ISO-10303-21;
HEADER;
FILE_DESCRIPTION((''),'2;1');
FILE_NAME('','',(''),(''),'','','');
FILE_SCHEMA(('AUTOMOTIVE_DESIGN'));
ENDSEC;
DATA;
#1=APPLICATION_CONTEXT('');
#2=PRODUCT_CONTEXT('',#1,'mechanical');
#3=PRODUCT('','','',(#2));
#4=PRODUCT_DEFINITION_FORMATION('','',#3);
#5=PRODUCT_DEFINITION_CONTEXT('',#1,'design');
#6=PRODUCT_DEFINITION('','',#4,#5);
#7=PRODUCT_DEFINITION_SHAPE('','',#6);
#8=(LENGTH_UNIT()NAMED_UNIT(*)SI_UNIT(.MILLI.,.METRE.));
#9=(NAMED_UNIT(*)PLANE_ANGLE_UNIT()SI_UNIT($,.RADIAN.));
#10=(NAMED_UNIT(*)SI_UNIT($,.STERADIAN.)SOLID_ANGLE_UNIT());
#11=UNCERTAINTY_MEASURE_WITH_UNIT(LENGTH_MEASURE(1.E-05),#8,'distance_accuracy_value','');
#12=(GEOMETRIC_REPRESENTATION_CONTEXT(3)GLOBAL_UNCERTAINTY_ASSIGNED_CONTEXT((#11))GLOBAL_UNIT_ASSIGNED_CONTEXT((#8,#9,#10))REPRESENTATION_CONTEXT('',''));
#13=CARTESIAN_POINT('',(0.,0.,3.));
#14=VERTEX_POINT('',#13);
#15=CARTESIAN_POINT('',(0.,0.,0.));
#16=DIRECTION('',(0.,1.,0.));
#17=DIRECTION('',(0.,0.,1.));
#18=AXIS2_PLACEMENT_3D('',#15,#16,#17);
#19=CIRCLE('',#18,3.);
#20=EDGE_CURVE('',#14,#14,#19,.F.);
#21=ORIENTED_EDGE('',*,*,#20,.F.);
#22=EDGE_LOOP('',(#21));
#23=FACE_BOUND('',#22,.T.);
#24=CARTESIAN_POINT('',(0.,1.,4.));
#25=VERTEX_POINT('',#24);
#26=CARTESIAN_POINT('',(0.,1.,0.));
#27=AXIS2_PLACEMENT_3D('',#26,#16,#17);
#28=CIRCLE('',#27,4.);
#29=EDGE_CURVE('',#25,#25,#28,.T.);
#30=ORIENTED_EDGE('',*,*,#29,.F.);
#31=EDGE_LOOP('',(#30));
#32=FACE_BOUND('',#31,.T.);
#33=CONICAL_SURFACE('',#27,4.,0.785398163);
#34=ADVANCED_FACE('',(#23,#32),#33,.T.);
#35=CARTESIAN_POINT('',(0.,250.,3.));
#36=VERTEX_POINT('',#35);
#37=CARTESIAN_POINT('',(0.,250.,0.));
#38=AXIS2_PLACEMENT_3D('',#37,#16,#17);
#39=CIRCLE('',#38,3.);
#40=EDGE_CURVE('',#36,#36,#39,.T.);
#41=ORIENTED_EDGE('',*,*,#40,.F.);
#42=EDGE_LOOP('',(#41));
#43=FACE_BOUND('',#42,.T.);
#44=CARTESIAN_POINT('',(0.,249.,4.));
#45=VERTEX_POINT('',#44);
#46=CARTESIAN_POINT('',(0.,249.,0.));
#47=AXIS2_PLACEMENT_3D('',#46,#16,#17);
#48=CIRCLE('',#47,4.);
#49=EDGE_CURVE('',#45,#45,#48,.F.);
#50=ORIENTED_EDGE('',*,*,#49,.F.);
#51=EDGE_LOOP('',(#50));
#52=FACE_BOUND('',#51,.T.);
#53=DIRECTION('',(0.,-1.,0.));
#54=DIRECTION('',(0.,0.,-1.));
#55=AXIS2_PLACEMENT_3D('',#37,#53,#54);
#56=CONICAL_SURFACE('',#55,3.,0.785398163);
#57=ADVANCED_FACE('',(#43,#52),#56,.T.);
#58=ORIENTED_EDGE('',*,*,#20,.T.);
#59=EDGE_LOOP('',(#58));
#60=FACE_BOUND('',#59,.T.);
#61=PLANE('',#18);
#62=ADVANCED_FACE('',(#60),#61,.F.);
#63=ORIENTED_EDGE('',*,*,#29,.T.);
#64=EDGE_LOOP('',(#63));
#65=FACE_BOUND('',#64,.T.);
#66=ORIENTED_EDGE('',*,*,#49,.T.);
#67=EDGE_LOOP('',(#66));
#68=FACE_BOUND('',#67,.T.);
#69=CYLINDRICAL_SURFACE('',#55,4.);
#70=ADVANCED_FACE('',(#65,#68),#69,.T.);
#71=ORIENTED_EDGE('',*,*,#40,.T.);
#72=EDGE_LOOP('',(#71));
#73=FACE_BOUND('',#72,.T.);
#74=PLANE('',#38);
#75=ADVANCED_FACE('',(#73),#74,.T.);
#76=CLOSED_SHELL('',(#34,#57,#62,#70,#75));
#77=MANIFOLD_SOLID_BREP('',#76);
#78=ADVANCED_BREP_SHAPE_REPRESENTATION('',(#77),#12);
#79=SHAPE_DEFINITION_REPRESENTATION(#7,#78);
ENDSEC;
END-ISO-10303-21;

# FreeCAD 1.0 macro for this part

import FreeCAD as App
import Part
import Sketcher

V = App.Vector


def edges_at(feature, points):
    """Names of the edges that pass closest to the given points."""
    edges = feature.Shape.Edges
    near = lambda p: min(range(len(edges)), key=lambda i: edges[i].distToShape(Part.Vertex(*p))[0])
    return sorted({f"Edge{near(p) + 1}" for p in points})

doc = App.newDocument("Part")
body = doc.addObject("PartDesign::Body", "Body")

# Sketch on XZ plane
sketch1 = doc.addObject("Sketcher::SketchObject", "Sketch")
body.addObject(sketch1)
sketch1.AttachmentSupport = (doc.XZ_Plane, [""])
sketch1.MapMode = "FlatFace"
sketch1.addGeometry(Part.Circle(V(0, 0, 0), V(0, 0, 1), 4), False)
sketch1.addConstraint(Sketcher.Constraint("Coincident", 0, 3, -1, 1))
sketch1.addConstraint(Sketcher.Constraint("Diameter", 0, 8.0))
pad1 = doc.addObject("PartDesign::Pad", "Pad")
body.addObject(pad1)
pad1.Profile = sketch1
pad1.Length = 250
pad1.Reversed = True
doc.recompute()

chamfer = doc.addObject("PartDesign::Chamfer", "Chamfer")
body.addObject(chamfer)
chamfer.Base = (pad1, edges_at(pad1, [(-4, 0, 0), (-4, 250, 0)]))
chamfer.Size = 1

doc.recompute()
